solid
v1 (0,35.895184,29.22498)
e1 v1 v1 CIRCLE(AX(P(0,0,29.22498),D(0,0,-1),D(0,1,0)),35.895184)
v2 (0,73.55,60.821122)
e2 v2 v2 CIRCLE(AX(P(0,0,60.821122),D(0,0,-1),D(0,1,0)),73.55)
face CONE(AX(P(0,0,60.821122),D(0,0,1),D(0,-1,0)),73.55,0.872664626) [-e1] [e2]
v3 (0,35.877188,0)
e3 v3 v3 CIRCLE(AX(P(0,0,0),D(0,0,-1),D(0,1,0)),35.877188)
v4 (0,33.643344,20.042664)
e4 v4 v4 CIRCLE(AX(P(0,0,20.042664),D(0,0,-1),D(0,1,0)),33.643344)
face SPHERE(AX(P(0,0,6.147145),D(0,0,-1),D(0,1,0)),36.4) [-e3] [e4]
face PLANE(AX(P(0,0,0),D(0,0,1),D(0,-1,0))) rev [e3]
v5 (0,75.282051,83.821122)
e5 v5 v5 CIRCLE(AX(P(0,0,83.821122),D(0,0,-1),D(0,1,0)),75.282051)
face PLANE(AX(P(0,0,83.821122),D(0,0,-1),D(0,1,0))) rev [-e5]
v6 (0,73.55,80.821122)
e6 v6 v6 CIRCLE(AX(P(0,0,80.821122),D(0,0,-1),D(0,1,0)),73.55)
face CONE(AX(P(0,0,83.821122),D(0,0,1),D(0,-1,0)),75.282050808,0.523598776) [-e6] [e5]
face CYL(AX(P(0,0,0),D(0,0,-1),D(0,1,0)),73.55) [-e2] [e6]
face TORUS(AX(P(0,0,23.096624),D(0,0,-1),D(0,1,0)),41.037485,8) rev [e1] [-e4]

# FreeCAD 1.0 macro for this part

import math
import FreeCAD as App
import Part
import Sketcher
from FreeCAD import Vector
Q = App.Units.Quantity

doc = App.newDocument("Part")
body = doc.addObject("PartDesign::Body", "Body")

sketch1 = doc.addObject("Sketcher::SketchObject", "Sketch")
body.addObject(sketch1)
sketch1.AttachmentSupport = (doc.YZ_Plane, [""])
sketch1.MapMode = "FlatFace"
sketch1.addGeometry(Part.LineSegment(Vector(0, 83.821122, 0), Vector(0, 0, 0)), False)
sketch1.addGeometry(Part.LineSegment(Vector(0, 0, 0), Vector(35.877188, 0, 0)), False)
sketch1.addGeometry(Part.ArcOfCircle(Part.Circle(Vector(0, 6.147145, 0), Vector(0, 0, 1), 36.4), math.radians(-9.722568), math.radians(22.441815)), False)
sketch1.addGeometry(Part.ArcOfCircle(Part.Circle(Vector(41.037485, 23.096624, 0), Vector(0, 0, 1), 8), math.radians(130), math.radians(202.441815)), False)
sketch1.addGeometry(Part.LineSegment(Vector(35.895184, 29.22498, 0), Vector(73.55, 60.821122, 0)), False)
sketch1.addGeometry(Part.LineSegment(Vector(73.55, 60.821122, 0), Vector(73.55, 80.821122, 0)), False)
sketch1.addGeometry(Part.LineSegment(Vector(73.55, 80.821122, 0), Vector(75.282051, 83.821122, 0)), False)
sketch1.addGeometry(Part.LineSegment(Vector(75.282051, 83.821122, 0), Vector(0, 83.821122, 0)), False)
sketch1.addConstraint(Sketcher.Constraint("Coincident", 0, 2, 1, 1))
sketch1.addConstraint(Sketcher.Constraint("Coincident", 1, 2, 2, 1))
sketch1.addConstraint(Sketcher.Constraint("Tangent", 2, 2, 3, 2))
sketch1.addConstraint(Sketcher.Constraint("Tangent", 3, 1, 4, 1))
sketch1.addConstraint(Sketcher.Constraint("Coincident", 4, 2, 5, 1))
sketch1.addConstraint(Sketcher.Constraint("Coincident", 5, 2, 6, 1))
sketch1.addConstraint(Sketcher.Constraint("Coincident", 6, 2, 7, 1))
sketch1.addConstraint(Sketcher.Constraint("Coincident", 7, 2, 0, 1))
sketch1.addConstraint(Sketcher.Constraint("Vertical", 0))
sketch1.addConstraint(Sketcher.Constraint("Horizontal", 1))
sketch1.addConstraint(Sketcher.Constraint("Vertical", 5))
sketch1.addConstraint(Sketcher.Constraint("Horizontal", 7))
sketch1.addConstraint(Sketcher.Constraint("Coincident", 0, 2, -1, 1))
sketch1.addConstraint(Sketcher.Constraint("PointOnObject", 2, 3, -2))
sketch1.addConstraint(Sketcher.Constraint("Radius", 3, Q("8 mm")))
sketch1.addConstraint(Sketcher.Constraint("Radius", 2, Q("36.4 mm")))
sketch1.addConstraint(Sketcher.Constraint("DistanceY", 5, 1, 5, 2, Q("20 mm")))
sketch1.addConstraint(Sketcher.Constraint("Angle", 4, Q("40 deg")))
sketch1.addConstraint(Sketcher.Constraint("Angle", 6, Q("60 deg")))
sketch1.addConstraint(Sketcher.Constraint("DistanceY", 5, 2, 6, 2, Q("3 mm")))
sketch1.addConstraint(Sketcher.Constraint("DistanceX", -1, 1, 4, 2, Q("73.55 mm")))
sketch1.addConstraint(Sketcher.Constraint("DistanceY", 0, 2, 0, 1, Q("83.821122 mm")))
sketch1.addConstraint(Sketcher.Constraint("Distance", 4, Q("49.154871 mm")))
revolution = doc.addObject("PartDesign::Revolution", "Revolution")
body.addObject(revolution)
revolution.Profile = sketch1
revolution.ReferenceAxis = (sketch1, ["V_Axis"])
revolution.Angle = 360

doc.recompute()
